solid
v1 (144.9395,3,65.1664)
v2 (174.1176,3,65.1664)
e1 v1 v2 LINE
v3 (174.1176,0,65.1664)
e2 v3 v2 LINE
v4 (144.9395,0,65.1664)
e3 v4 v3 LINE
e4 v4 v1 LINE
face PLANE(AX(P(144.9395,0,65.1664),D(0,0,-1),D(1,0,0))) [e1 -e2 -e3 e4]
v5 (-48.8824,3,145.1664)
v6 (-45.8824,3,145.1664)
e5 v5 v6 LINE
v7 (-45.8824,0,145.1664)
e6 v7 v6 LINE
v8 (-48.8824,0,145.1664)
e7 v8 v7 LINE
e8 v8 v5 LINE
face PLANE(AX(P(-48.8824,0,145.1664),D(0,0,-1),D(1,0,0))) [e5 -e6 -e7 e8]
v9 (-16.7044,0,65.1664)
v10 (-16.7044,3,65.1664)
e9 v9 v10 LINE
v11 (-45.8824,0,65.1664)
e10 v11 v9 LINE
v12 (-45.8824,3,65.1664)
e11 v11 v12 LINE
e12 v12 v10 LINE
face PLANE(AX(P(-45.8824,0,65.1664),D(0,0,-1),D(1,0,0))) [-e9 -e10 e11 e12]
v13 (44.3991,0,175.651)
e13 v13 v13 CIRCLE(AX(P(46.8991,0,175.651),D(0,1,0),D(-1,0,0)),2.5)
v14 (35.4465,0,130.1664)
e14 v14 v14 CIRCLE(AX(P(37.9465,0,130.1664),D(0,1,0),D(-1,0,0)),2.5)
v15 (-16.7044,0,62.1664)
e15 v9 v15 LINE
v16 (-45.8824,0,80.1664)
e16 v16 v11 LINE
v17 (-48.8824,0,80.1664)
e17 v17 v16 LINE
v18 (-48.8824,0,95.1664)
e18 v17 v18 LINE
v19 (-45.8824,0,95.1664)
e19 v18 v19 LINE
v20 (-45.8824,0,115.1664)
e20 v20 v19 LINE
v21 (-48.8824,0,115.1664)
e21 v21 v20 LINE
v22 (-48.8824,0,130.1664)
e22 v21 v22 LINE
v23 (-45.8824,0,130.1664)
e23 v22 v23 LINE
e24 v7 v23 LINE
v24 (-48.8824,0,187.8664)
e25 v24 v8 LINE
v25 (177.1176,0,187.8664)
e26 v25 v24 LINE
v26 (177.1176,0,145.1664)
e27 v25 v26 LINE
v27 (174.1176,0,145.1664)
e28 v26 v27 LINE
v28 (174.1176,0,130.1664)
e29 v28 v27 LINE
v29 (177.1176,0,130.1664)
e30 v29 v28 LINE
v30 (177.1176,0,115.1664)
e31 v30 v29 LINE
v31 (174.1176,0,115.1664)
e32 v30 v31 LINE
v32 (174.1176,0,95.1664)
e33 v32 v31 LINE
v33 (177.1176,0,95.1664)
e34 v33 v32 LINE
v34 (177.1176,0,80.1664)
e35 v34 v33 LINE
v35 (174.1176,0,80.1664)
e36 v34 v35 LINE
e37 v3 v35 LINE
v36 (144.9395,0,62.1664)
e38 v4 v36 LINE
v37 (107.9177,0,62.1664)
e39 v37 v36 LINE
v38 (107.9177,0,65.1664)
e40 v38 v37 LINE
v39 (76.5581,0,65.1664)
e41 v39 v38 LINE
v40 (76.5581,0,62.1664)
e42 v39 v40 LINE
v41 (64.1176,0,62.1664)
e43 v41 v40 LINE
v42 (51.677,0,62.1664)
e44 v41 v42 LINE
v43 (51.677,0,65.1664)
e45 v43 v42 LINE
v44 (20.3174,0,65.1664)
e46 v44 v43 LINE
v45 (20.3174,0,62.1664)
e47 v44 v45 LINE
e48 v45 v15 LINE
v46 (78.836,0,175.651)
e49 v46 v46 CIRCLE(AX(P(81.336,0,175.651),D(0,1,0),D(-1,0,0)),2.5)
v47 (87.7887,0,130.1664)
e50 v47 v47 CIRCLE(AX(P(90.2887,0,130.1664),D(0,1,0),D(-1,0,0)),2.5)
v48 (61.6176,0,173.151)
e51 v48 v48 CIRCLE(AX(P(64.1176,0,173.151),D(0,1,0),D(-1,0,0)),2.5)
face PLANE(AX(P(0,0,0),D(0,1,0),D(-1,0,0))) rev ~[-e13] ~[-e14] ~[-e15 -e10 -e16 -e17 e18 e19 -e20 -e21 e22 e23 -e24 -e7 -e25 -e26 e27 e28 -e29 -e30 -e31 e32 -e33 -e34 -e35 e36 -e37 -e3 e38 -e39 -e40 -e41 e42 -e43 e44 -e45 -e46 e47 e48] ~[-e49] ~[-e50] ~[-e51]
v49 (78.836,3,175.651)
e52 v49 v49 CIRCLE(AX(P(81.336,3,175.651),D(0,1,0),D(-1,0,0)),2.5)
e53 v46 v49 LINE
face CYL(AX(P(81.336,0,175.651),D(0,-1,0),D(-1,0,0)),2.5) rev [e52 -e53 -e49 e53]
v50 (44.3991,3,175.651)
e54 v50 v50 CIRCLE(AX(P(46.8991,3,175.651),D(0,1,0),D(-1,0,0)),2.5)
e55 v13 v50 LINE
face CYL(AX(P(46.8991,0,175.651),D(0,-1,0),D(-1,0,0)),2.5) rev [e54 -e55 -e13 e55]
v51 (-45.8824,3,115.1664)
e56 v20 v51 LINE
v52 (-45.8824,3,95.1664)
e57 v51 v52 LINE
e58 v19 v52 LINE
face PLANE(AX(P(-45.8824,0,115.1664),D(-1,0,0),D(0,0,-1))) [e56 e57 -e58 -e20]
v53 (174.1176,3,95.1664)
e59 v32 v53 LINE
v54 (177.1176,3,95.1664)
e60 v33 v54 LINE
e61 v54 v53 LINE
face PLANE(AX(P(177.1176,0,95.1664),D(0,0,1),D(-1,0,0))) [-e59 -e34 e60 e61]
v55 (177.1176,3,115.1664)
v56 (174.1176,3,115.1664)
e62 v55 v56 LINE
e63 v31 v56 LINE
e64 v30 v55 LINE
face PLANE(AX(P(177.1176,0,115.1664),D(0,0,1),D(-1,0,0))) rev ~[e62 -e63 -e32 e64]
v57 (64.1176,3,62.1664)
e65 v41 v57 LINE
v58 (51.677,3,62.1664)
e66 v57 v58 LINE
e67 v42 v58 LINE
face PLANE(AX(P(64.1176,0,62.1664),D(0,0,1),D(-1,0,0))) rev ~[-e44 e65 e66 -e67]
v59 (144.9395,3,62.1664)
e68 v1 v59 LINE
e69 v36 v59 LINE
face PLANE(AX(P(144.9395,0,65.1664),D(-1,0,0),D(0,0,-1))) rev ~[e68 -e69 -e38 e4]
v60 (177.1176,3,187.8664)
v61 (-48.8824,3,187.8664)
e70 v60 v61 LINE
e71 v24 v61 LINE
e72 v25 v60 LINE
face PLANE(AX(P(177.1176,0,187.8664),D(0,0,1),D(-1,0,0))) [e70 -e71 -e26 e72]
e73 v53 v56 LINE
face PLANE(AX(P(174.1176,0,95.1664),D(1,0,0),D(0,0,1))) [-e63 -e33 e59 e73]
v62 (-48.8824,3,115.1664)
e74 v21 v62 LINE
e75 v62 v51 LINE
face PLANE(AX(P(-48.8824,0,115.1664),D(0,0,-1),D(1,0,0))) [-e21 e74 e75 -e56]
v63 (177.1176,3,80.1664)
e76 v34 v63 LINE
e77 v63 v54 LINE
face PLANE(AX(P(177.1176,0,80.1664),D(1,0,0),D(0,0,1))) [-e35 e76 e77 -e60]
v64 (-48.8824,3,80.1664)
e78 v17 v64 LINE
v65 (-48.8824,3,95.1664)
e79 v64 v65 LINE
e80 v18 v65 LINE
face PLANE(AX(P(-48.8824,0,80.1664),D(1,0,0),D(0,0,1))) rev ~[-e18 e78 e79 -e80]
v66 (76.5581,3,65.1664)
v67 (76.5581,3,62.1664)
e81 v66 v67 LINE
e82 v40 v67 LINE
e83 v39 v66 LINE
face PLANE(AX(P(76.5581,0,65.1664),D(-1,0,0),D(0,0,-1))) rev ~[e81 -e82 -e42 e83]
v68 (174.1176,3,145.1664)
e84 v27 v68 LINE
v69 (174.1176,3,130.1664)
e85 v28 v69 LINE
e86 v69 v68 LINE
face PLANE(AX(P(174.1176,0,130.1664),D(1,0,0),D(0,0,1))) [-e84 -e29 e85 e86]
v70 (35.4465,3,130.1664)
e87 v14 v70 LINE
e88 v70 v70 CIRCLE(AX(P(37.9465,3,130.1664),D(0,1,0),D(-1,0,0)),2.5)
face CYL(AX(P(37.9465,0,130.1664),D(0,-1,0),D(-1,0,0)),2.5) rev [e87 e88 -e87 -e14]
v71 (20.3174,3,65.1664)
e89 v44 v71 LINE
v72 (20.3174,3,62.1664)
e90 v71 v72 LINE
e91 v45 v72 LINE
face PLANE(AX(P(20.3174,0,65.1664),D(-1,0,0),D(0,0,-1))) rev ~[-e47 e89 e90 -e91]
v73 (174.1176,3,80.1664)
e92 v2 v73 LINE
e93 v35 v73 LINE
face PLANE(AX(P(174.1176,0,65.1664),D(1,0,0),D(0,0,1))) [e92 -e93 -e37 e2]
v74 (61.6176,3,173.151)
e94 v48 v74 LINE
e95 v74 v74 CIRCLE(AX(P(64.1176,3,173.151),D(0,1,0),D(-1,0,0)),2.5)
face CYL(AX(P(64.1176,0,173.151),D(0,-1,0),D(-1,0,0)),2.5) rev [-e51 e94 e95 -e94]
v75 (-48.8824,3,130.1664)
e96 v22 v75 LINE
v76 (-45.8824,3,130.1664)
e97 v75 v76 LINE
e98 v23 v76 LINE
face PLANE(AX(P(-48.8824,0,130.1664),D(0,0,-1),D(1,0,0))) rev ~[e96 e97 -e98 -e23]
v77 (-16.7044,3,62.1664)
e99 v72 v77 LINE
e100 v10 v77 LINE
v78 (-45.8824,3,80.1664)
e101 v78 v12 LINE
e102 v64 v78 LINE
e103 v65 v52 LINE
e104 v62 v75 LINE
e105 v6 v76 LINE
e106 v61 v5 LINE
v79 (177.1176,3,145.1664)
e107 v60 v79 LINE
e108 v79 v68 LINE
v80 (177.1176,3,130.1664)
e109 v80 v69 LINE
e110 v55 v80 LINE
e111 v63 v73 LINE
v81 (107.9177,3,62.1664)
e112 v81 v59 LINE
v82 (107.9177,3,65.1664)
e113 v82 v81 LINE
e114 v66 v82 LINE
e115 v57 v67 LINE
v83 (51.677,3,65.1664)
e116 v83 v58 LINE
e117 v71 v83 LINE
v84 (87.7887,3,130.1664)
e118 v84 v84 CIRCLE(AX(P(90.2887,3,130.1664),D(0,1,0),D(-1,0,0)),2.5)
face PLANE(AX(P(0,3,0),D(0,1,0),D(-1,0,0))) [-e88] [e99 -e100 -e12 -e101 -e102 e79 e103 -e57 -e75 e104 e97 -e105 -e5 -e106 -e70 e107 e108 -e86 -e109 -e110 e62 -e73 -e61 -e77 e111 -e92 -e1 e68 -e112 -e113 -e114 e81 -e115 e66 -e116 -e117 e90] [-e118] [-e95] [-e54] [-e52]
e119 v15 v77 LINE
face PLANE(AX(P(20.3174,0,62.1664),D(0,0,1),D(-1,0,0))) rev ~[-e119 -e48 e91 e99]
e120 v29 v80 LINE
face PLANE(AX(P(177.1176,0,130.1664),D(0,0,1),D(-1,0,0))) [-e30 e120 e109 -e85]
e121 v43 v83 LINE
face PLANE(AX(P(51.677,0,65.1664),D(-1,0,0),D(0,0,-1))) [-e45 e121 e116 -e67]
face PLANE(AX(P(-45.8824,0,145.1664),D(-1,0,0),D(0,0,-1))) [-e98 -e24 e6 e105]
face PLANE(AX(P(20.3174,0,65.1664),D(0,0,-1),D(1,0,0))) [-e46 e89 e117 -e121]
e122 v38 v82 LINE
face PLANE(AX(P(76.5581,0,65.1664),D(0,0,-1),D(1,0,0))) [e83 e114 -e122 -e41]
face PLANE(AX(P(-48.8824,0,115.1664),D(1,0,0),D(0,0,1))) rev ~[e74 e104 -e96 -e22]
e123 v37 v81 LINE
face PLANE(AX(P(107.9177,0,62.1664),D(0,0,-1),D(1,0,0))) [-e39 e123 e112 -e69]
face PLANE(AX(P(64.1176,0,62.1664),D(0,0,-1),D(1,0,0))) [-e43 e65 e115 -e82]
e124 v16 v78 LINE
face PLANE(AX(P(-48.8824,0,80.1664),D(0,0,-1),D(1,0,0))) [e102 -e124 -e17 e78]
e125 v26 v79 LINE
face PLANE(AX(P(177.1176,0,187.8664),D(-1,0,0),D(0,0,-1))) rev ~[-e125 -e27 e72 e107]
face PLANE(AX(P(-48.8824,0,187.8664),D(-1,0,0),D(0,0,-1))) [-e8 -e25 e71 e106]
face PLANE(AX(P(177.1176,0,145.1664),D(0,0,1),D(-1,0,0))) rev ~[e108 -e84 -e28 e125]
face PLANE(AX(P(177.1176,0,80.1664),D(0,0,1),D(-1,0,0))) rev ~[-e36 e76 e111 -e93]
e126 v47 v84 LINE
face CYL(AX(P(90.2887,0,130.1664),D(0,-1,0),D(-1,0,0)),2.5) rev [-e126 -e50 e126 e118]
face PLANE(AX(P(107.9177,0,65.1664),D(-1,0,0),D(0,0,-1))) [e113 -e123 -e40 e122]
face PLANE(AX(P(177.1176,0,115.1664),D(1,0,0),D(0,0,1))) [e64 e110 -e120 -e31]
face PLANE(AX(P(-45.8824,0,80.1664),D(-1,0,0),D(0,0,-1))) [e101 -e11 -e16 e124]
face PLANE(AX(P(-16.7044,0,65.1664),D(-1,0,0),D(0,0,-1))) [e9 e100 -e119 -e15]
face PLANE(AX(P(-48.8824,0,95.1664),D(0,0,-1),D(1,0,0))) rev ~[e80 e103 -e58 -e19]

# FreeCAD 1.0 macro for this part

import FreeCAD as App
import Part
import Sketcher
from FreeCAD import Vector
Q = App.Units.Quantity


def add_polygon(sketch, points):
    """Adds a closed chain of lines whose ends are joined by coincident constraints."""
    first, n = sketch.GeometryCount, len(points)
    for a, b in zip(points, points[1:] + points[:1]):
        sketch.addGeometry(Part.LineSegment(App.Vector(*a, 0), App.Vector(*b, 0)), False)
    for i in range(n):
        sketch.addConstraint(Sketcher.Constraint("Coincident", first + i, 2, first + (i + 1) % n, 1))

doc = App.newDocument("Part")
body = doc.addObject("PartDesign::Body", "Body")

sketch1 = body.newObject("Sketcher::SketchObject", "Sketch")
sketch1.AttachmentSupport = (doc.getObject("XZ_Plane"), [""])
sketch1.MapMode = "FlatFace"
add_polygon(sketch1, [(-16.7, 62.2), (-16.7, 65.2), (-45.9, 65.2), (-45.9, 80.2), (-48.9, 80.2), (-48.9, 95.2), (-45.9, 95.2), (-45.9, 115.2), (-48.9, 115.2), (-48.9, 130.2), (-45.9, 130.2), (-45.9, 145.2), (-48.9, 145.2), (-48.9, 187.9), (177.1, 187.9), (177.1, 145.2), (174.1, 145.2), (174.1, 130.2), (177.1, 130.2), (177.1, 115.2), (174.1, 115.2), (174.1, 95.2), (177.1, 95.2), (177.1, 80.2), (174.1, 80.2), (174.1, 65.2), (144.9, 65.2), (144.9, 62.2), (107.9, 62.2), (107.9, 65.2), (76.6, 65.2), (76.6, 62.2), (51.7, 62.2), (51.7, 65.2), (20.3, 65.2), (20.3, 62.2)])
sketch1.addGeometry(Part.Circle(Vector(90.3, 130.2, 0), Vector(0, 0, 1), 2.5), False)
sketch1.addGeometry(Part.Circle(Vector(81.3, 175.7, 0), Vector(0, 0, 1), 2.5), False)
sketch1.addGeometry(Part.Circle(Vector(64.1, 173.2, 0), Vector(0, 0, 1), 2.5), False)
sketch1.addGeometry(Part.Circle(Vector(37.9, 130.2, 0), Vector(0, 0, 1), 2.5), False)
sketch1.addGeometry(Part.Circle(Vector(46.9, 175.7, 0), Vector(0, 0, 1), 2.5), False)
sketch1.addConstraint(Sketcher.Constraint("Vertical", 0))
sketch1.addConstraint(Sketcher.Constraint("Horizontal", 1))
sketch1.addConstraint(Sketcher.Constraint("Vertical", 2))
sketch1.addConstraint(Sketcher.Constraint("Horizontal", 3))
sketch1.addConstraint(Sketcher.Constraint("Vertical", 4))
sketch1.addConstraint(Sketcher.Constraint("Horizontal", 5))
sketch1.addConstraint(Sketcher.Constraint("Vertical", 6))
sketch1.addConstraint(Sketcher.Constraint("Horizontal", 7))
sketch1.addConstraint(Sketcher.Constraint("Vertical", 8))
sketch1.addConstraint(Sketcher.Constraint("Horizontal", 9))
sketch1.addConstraint(Sketcher.Constraint("Vertical", 10))
sketch1.addConstraint(Sketcher.Constraint("Horizontal", 11))
sketch1.addConstraint(Sketcher.Constraint("Vertical", 12))
sketch1.addConstraint(Sketcher.Constraint("Horizontal", 13))
sketch1.addConstraint(Sketcher.Constraint("Vertical", 14))
sketch1.addConstraint(Sketcher.Constraint("Horizontal", 15))
sketch1.addConstraint(Sketcher.Constraint("Vertical", 16))
sketch1.addConstraint(Sketcher.Constraint("Horizontal", 17))
sketch1.addConstraint(Sketcher.Constraint("Vertical", 18))
sketch1.addConstraint(Sketcher.Constraint("Horizontal", 19))
sketch1.addConstraint(Sketcher.Constraint("Vertical", 20))
sketch1.addConstraint(Sketcher.Constraint("Horizontal", 21))
sketch1.addConstraint(Sketcher.Constraint("Vertical", 22))
sketch1.addConstraint(Sketcher.Constraint("Horizontal", 23))
sketch1.addConstraint(Sketcher.Constraint("Vertical", 24))
sketch1.addConstraint(Sketcher.Constraint("Horizontal", 25))
sketch1.addConstraint(Sketcher.Constraint("Vertical", 26))
sketch1.addConstraint(Sketcher.Constraint("Horizontal", 27))
sketch1.addConstraint(Sketcher.Constraint("Vertical", 28))
sketch1.addConstraint(Sketcher.Constraint("Horizontal", 29))
sketch1.addConstraint(Sketcher.Constraint("Vertical", 30))
sketch1.addConstraint(Sketcher.Constraint("Horizontal", 31))
sketch1.addConstraint(Sketcher.Constraint("Vertical", 32))
sketch1.addConstraint(Sketcher.Constraint("Horizontal", 33))
sketch1.addConstraint(Sketcher.Constraint("Vertical", 34))
sketch1.addConstraint(Sketcher.Constraint("Horizontal", 35))
sketch1.addConstraint(Sketcher.Constraint("Equal", 36, 37))
sketch1.addConstraint(Sketcher.Constraint("Equal", 37, 38))
sketch1.addConstraint(Sketcher.Constraint("Equal", 38, 39))
sketch1.addConstraint(Sketcher.Constraint("Equal", 39, 40))
sketch1.addConstraint(Sketcher.Constraint("Horizontal", 36, 3, 39, 3))
sketch1.addConstraint(Sketcher.Constraint("Horizontal", 37, 3, 40, 3))
sketch1.addConstraint(Sketcher.Constraint("Horizontal", 39, 3, 8, 2))
sketch1.addConstraint(Sketcher.Constraint("Horizontal", 11, 2, 14, 2))
sketch1.addConstraint(Sketcher.Constraint("Horizontal", 9, 2, 16, 2))
sketch1.addConstraint(Sketcher.Constraint("Horizontal", 7, 2, 18, 2))
sketch1.addConstraint(Sketcher.Constraint("Horizontal", 5, 2, 20, 2))
sketch1.addConstraint(Sketcher.Constraint("Horizontal", 3, 2, 22, 2))
sketch1.addConstraint(Sketcher.Constraint("Horizontal", 1, 2, 24, 2))
sketch1.addConstraint(Sketcher.Constraint("Horizontal", 25, 2, 28, 2))
sketch1.addConstraint(Sketcher.Constraint("Horizontal", 27, 2, 30, 2))
sketch1.addConstraint(Sketcher.Constraint("Horizontal", 29, 2, 32, 2))
sketch1.addConstraint(Sketcher.Constraint("Horizontal", 31, 2, 34, 2))
sketch1.addConstraint(Sketcher.Constraint("Vertical", 2, 2, 5, 2))
sketch1.addConstraint(Sketcher.Constraint("Vertical", 4, 2, 7, 2))
sketch1.addConstraint(Sketcher.Constraint("Vertical", 6, 2, 9, 2))
sketch1.addConstraint(Sketcher.Constraint("Vertical", 8, 2, 11, 2))
sketch1.addConstraint(Sketcher.Constraint("Vertical", 14, 2, 17, 2))
sketch1.addConstraint(Sketcher.Constraint("Vertical", 16, 2, 19, 2))
sketch1.addConstraint(Sketcher.Constraint("Vertical", 18, 2, 21, 2))
sketch1.addConstraint(Sketcher.Constraint("Vertical", 20, 2, 23, 2))
sketch1.addConstraint(Sketcher.Constraint("Equal", 11, 15))
sketch1.addConstraint(Sketcher.Constraint("Equal", 1, 25))
sketch1.addConstraint(Sketcher.Constraint("Equal", 29, 33))
sketch1.addConstraint(Sketcher.Constraint("Equal", 27, 35))
sketch1.addConstraint(Sketcher.Constraint("Equal", 23, 0))
sketch1.addConstraint(Sketcher.Constraint("Equal", 2, 4))
sketch1.addConstraint(Sketcher.Constraint("Equal", 4, 8))
sketch1.addConstraint(Sketcher.Constraint("Equal", 8, 10))
sketch1.addConstraint(Sketcher.Constraint("Diameter", 36, Q("5 mm")))
sketch1.addConstraint(Sketcher.Constraint("DistanceX", 3, 2, 3, 1, Q("3 mm")))
sketch1.addConstraint(Sketcher.Constraint("DistanceX", 13, 1, 13, 2, Q("226 mm")))
sketch1.addConstraint(Sketcher.Constraint("DistanceY", 2, 1, 2, 2, Q("15 mm")))
sketch1.addConstraint(Sketcher.Constraint("DistanceY", 6, 1, 6, 2, Q("20 mm")))
sketch1.addConstraint(Sketcher.Constraint("DistanceX", 1, 2, 1, 1, Q("29.178 mm")))
sketch1.addConstraint(Sketcher.Constraint("DistanceX", 31, 2, 31, 1, Q("24.881 mm")))
sketch1.addConstraint(Sketcher.Constraint("DistanceX", 27, 2, 27, 1, Q("37.0218 mm")))
sketch1.addConstraint(Sketcher.Constraint("DistanceY", 12, 1, 12, 2, Q("42.7 mm")))
sketch1.addConstraint(Sketcher.Constraint("DistanceX", 1, 2, 38, 3, Q("110 mm")))
sketch1.addConstraint(Sketcher.Constraint("DistanceY", 38, 3, 37, 3, Q("2.5 mm")))
sketch1.addConstraint(Sketcher.Constraint("DistanceX", -1, 1, 37, 3, Q("81.336 mm")))
sketch1.addConstraint(Sketcher.Constraint("DistanceY", -1, 1, 37, 3, Q("175.651 mm")))
sketch1.addConstraint(Sketcher.Constraint("DistanceX", -1, 1, 40, 3, Q("46.899 mm")))
sketch1.addConstraint(Sketcher.Constraint("DistanceX", -1, 1, 29, 2, Q("76.558 mm")))
sketch1.addConstraint(Sketcher.Constraint("DistanceX", 38, 3, 36, 3, Q("26.171 mm")))
sketch1.addConstraint(Sketcher.Constraint("DistanceX", 39, 3, 38, 3, Q("26.171 mm")))
sketch1.addConstraint(Sketcher.Constraint("DistanceY", -1, 1, 36, 3, Q("130.1664 mm")))
pad1 = body.newObject("PartDesign::Pad", "Pad")
pad1.Profile = sketch1
pad1.Length = 3
pad1.Reversed = True

doc.recompute()
